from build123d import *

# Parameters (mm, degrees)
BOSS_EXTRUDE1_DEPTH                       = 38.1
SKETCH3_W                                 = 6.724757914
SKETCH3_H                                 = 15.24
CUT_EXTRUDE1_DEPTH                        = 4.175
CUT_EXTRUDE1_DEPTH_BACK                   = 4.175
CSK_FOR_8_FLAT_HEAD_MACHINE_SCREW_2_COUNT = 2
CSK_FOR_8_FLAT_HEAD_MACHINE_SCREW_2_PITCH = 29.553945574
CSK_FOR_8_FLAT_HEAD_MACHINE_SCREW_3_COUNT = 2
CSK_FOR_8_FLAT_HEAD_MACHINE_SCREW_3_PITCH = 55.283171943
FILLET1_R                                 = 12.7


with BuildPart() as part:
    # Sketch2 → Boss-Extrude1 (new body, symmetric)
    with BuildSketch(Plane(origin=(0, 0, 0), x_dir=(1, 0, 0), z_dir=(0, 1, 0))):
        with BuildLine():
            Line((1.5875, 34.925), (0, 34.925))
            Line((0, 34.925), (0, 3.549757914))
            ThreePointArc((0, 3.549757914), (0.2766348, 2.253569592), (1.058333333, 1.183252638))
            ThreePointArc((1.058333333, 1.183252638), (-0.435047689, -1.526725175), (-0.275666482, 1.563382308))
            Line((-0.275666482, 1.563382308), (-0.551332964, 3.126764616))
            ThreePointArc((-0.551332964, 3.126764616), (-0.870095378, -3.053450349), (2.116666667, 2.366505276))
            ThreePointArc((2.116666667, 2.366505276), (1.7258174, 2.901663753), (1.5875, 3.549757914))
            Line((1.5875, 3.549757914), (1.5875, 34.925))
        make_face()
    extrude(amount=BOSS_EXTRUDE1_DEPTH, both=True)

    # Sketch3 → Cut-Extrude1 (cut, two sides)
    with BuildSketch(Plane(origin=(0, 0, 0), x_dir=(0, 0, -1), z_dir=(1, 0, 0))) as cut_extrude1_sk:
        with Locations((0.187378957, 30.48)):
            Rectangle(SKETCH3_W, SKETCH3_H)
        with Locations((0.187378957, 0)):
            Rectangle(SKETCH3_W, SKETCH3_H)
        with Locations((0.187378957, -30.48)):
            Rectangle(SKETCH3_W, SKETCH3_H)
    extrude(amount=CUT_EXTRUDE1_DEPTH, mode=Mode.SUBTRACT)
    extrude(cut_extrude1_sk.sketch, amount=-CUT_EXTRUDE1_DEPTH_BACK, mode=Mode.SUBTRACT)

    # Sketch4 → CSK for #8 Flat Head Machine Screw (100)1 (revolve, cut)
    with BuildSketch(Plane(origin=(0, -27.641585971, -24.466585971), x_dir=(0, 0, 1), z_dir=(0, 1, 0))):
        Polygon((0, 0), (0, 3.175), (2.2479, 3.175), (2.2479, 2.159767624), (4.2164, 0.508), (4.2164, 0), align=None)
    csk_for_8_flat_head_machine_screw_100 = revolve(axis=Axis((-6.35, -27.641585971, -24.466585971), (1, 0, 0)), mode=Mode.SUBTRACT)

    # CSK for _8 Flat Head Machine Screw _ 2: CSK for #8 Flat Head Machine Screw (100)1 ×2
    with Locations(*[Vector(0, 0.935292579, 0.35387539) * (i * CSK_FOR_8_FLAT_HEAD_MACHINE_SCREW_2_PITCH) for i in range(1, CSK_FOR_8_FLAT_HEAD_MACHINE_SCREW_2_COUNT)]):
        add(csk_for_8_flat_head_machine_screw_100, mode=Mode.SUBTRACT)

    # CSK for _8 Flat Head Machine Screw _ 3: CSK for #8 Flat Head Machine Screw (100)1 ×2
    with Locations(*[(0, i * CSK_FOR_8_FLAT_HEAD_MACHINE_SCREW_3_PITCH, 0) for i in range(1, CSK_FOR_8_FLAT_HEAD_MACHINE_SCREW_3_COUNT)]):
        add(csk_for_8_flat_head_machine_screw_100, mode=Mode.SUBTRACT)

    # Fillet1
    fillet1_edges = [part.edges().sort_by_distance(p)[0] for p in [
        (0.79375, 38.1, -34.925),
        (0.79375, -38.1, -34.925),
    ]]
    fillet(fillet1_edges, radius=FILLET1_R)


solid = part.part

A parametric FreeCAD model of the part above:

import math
import FreeCAD as App
import Part
import Sketcher

V = App.Vector
Q = App.Units.Quantity


def edges_at(feature, points):
    """Names of the edges that pass closest to the given points."""
    edges = feature.Shape.Edges
    near = lambda p: min(range(len(edges)), key=lambda i: edges[i].distToShape(Part.Vertex(*p))[0])
    return sorted({f"Edge{near(p) + 1}" for p in points})

doc = App.newDocument("Part")
params = doc.addObject("Spreadsheet::Sheet", "Params")
for row, (alias, value) in enumerate([
    ("sketch1_radius", "0.125 in"),
    ("sketch1_radius2", "0.0625 in"),
    ("pad1_length", "3 in"),
    ("sketch2_width", "0.6 in"),
    ("sketch3_width", "0.02 in"),
    ("sketch3_width2", "0.125 in"),
    ("sketch3_height", "0.166 in"),
    ("groove_angle", "360 deg"),
    ("linearpattern_pitch", "29.553946 mm"),
    ("linearpattern2_pitch", "55.283172 mm"),
    ("fillet_radius", "0.5 in"),
], start=1):
    params.set(f"A{row}", alias)
    params.set(f"B{row}", "=" + value)
    params.setAlias(f"B{row}", alias)

body = doc.addObject("PartDesign::Body", "Body")

# Sketch on XZ plane
sketch1 = body.newObject("Sketcher::SketchObject", "Sketch")
sketch1.AttachmentSupport = (doc.getObject("XZ_Plane"), [""])
sketch1.MapMode = "FlatFace"
sketch1.addGeometry(Part.LineSegment(V(1.5875, -34.925, 0), V(0, -34.925, 0)), False)
sketch1.addGeometry(Part.LineSegment(V(0, -34.925, 0), V(0, -3.549758, 0)), False)
sketch1.addGeometry(Part.ArcOfCircle(Part.Circle(V(3.175, -3.549758, 0), V(0, 0, 1), 3.175), math.radians(131.810315), math.radians(180)), False)
sketch1.addGeometry(Part.ArcOfCircle(Part.Circle(V(0, 0, 0), V(0, 0, 1), 1.5875), math.radians(-48.189685), math.radians(260)), False)
sketch1.addGeometry(Part.LineSegment(V(-0.275666, -1.563382, 0), V(-0.551333, -3.126765, 0)), False)
sketch1.addGeometry(Part.ArcOfCircle(Part.Circle(V(0, 0, 0), V(0, 0, 1), 3.175), math.radians(-48.189685), math.radians(260)), False)
sketch1.addGeometry(Part.ArcOfCircle(Part.Circle(V(3.175, -3.549758, 0), V(0, 0, 1), 1.5875), math.radians(131.810315), math.radians(180)), False)
sketch1.addGeometry(Part.LineSegment(V(1.5875, -3.549758, 0), V(1.5875, -34.925, 0)), False)
sketch1.addConstraint(Sketcher.Constraint("Coincident", 0, 2, 1, 1))
sketch1.addConstraint(Sketcher.Constraint("Tangent", 1, 2, 2, 2))
sketch1.addConstraint(Sketcher.Constraint("Tangent", 2, 1, 3, 1))
sketch1.addConstraint(Sketcher.Constraint("Coincident", 3, 2, 4, 1))
sketch1.addConstraint(Sketcher.Constraint("Coincident", 4, 2, 5, 2))
sketch1.addConstraint(Sketcher.Constraint("Tangent", 5, 1, 6, 1))
sketch1.addConstraint(Sketcher.Constraint("Tangent", 6, 2, 7, 1))
sketch1.addConstraint(Sketcher.Constraint("Coincident", 7, 2, 0, 1))
sketch1.addConstraint(Sketcher.Constraint("Horizontal", 0))
sketch1.addConstraint(Sketcher.Constraint("Vertical", 1))
sketch1.addConstraint(Sketcher.Constraint("Vertical", 7))
sketch1.addConstraint(Sketcher.Constraint("Coincident", 3, 3, -1, 1))
sketch1.addConstraint(Sketcher.Constraint("Coincident", 5, 3, -1, 1))
sketch1.addConstraint(Sketcher.Constraint("Coincident", 6, 3, 2, 3))
sketch1.addConstraint(Sketcher.Constraint("Equal", 2, 5))
sketch1.addConstraint(Sketcher.Constraint("PointOnObject", 0, 2, -2))
sketch1.addConstraint(Sketcher.Constraint("Angle", 4, Q("-100 deg")))
sketch1.addConstraint(Sketcher.Constraint("Radius", 2, Q("0.125 in")))
sketch1.addConstraint(Sketcher.Constraint("Radius", 3, Q("0.0625 in")))
sketch1.addConstraint(Sketcher.Constraint("DistanceY", 0, 2, -1, 1, Q("1.375 in")))
sketch1.addConstraint(Sketcher.Constraint("DistanceX", 3, 2, 2, 1, 1.334))
sketch1.setExpression("Constraints[17]", "Params.sketch1_radius")
sketch1.setExpression("Constraints[18]", "Params.sketch1_radius2")
pad1 = body.newObject("PartDesign::Pad", "Pad")
pad1.Profile = sketch1
pad1.setExpression("Length", "Params.pad1_length")
pad1.Midplane = True

# Sketch on YZ plane
sketch2 = body.newObject("Sketcher::SketchObject", "Sketch001")
sketch2.AttachmentSupport = (doc.getObject("YZ_Plane"), [""])
sketch2.MapMode = "FlatFace"
sketch2.addGeometry(Part.LineSegment(V(38.1, 3.175, 0), V(22.86, 3.175, 0)), False)
sketch2.addGeometry(Part.LineSegment(V(22.86, 3.175, 0), V(22.86, -3.549758, 0)), False)
sketch2.addGeometry(Part.LineSegment(V(22.86, -3.549758, 0), V(38.1, -3.549758, 0)), False)
sketch2.addGeometry(Part.LineSegment(V(38.1, -3.549758, 0), V(38.1, 3.175, 0)), False)
sketch2.addGeometry(Part.LineSegment(V(7.62, 3.175, 0), V(-7.62, 3.175, 0)), False)
sketch2.addGeometry(Part.LineSegment(V(-7.62, 3.175, 0), V(-7.62, -3.549758, 0)), False)
sketch2.addGeometry(Part.LineSegment(V(-7.62, -3.549758, 0), V(7.62, -3.549758, 0)), False)
sketch2.addGeometry(Part.LineSegment(V(7.62, -3.549758, 0), V(7.62, 3.175, 0)), False)
sketch2.addGeometry(Part.LineSegment(V(-22.86, 3.175, 0), V(-38.1, 3.175, 0)), False)
sketch2.addGeometry(Part.LineSegment(V(-38.1, 3.175, 0), V(-38.1, -3.549758, 0)), False)
sketch2.addGeometry(Part.LineSegment(V(-38.1, -3.549758, 0), V(-22.86, -3.549758, 0)), False)
sketch2.addGeometry(Part.LineSegment(V(-22.86, -3.549758, 0), V(-22.86, 3.175, 0)), False)
sketch2.addConstraint(Sketcher.Constraint("Coincident", 0, 2, 1, 1))
sketch2.addConstraint(Sketcher.Constraint("Coincident", 1, 2, 2, 1))
sketch2.addConstraint(Sketcher.Constraint("Coincident", 2, 2, 3, 1))
sketch2.addConstraint(Sketcher.Constraint("Coincident", 3, 2, 0, 1))
sketch2.addConstraint(Sketcher.Constraint("Coincident", 4, 2, 5, 1))
sketch2.addConstraint(Sketcher.Constraint("Coincident", 5, 2, 6, 1))
sketch2.addConstraint(Sketcher.Constraint("Coincident", 6, 2, 7, 1))
sketch2.addConstraint(Sketcher.Constraint("Coincident", 7, 2, 4, 1))
sketch2.addConstraint(Sketcher.Constraint("Coincident", 8, 2, 9, 1))
sketch2.addConstraint(Sketcher.Constraint("Coincident", 9, 2, 10, 1))
sketch2.addConstraint(Sketcher.Constraint("Coincident", 10, 2, 11, 1))
sketch2.addConstraint(Sketcher.Constraint("Coincident", 11, 2, 8, 1))
sketch2.addConstraint(Sketcher.Constraint("Horizontal", 0))
sketch2.addConstraint(Sketcher.Constraint("Vertical", 1))
sketch2.addConstraint(Sketcher.Constraint("Horizontal", 2))
sketch2.addConstraint(Sketcher.Constraint("Vertical", 3))
sketch2.addConstraint(Sketcher.Constraint("Horizontal", 4))
sketch2.addConstraint(Sketcher.Constraint("Vertical", 5))
sketch2.addConstraint(Sketcher.Constraint("Horizontal", 6))
sketch2.addConstraint(Sketcher.Constraint("Vertical", 7))
sketch2.addConstraint(Sketcher.Constraint("Horizontal", 8))
sketch2.addConstraint(Sketcher.Constraint("Vertical", 9))
sketch2.addConstraint(Sketcher.Constraint("Horizontal", 10))
sketch2.addConstraint(Sketcher.Constraint("Vertical", 11))
sketch2.addConstraint(Sketcher.Constraint("Symmetric", 3, 2, 8, 2, -2))
sketch2.addConstraint(Sketcher.Constraint("Symmetric", 1, 2, 10, 2, -2))
sketch2.addConstraint(Sketcher.Constraint("Horizontal", 3, 2, 4, 2))
sketch2.addConstraint(Sketcher.Constraint("Horizontal", 2, 2, 5, 2))
sketch2.addConstraint(Sketcher.Constraint("Equal", 2, 4))
sketch2.addConstraint(Sketcher.Constraint("DistanceX", 0, 2, 0, 1, Q("0.6 in")))
sketch2.addConstraint(Sketcher.Constraint("DistanceX", -1, 1, 0, 2, Q("0.9 in")))
sketch2.addConstraint(Sketcher.Constraint("DistanceX", 4, 2, -1, 1, Q("0.3 in")))
sketch2.addConstraint(Sketcher.Constraint("DistanceY", -1, 1, 0, 2, Q("0.125 in")))
sketch2.addConstraint(Sketcher.Constraint("DistanceY", 1, 2, 1, 1, 6.724758))
sketch2.setExpression("Constraints[29]", "Params.sketch2_width")
pocket1 = body.newObject("PartDesign::Pocket", "Pocket")
pocket1.Profile = sketch2
pocket1.Type = "ThroughAll"
pocket1.Midplane = True

# Sketch on XZ plane
sketch3 = body.newObject("Sketcher::SketchObject", "Sketch002")
sketch3.AttachmentSupport = (doc.getObject("XZ_Plane"), [""])
sketch3.MapMode = "FlatFace"
sketch3.AttachmentOffset = App.Placement(V(0, 0, 27.641586), App.Rotation())
sketch3.addGeometry(Part.LineSegment(V(3.175, -24.466586, 0), V(0, -24.466586, 0)), False)
sketch3.addGeometry(Part.LineSegment(V(0, -24.466586, 0), V(0, -20.250186, 0)), False)
sketch3.addGeometry(Part.LineSegment(V(0, -20.250186, 0), V(0.508, -20.250186, 0)), False)
sketch3.addGeometry(Part.LineSegment(V(0.508, -20.250186, 0), V(2.159768, -22.218686, 0)), False)
sketch3.addGeometry(Part.LineSegment(V(2.159768, -22.218686, 0), V(3.175, -22.218686, 0)), False)
sketch3.addGeometry(Part.LineSegment(V(3.175, -22.218686, 0), V(3.175, -24.466586, 0)), False)
sketch3.addGeometry(Part.LineSegment(V(0, -24.466586, 0), V(3.175, -24.466586, 0)), True)  # axis
sketch3.addConstraint(Sketcher.Constraint("Coincident", 0, 2, 1, 1))
sketch3.addConstraint(Sketcher.Constraint("Coincident", 1, 2, 2, 1))
sketch3.addConstraint(Sketcher.Constraint("Coincident", 2, 2, 3, 1))
sketch3.addConstraint(Sketcher.Constraint("Coincident", 3, 2, 4, 1))
sketch3.addConstraint(Sketcher.Constraint("Coincident", 4, 2, 5, 1))
sketch3.addConstraint(Sketcher.Constraint("Coincident", 5, 2, 0, 1))
sketch3.addConstraint(Sketcher.Constraint("Horizontal", 0))
sketch3.addConstraint(Sketcher.Constraint("Vertical", 1))
sketch3.addConstraint(Sketcher.Constraint("Horizontal", 2))
sketch3.addConstraint(Sketcher.Constraint("Horizontal", 4))
sketch3.addConstraint(Sketcher.Constraint("Vertical", 5))
sketch3.addConstraint(Sketcher.Constraint("Horizontal", 6))
sketch3.addConstraint(Sketcher.Constraint("Coincident", 6, 1, 0, 2))
sketch3.addConstraint(Sketcher.Constraint("PointOnObject", 0, 2, -2))
sketch3.addConstraint(Sketcher.Constraint("Vertical", 4, 2, 6, 2))
sketch3.addConstraint(Sketcher.Constraint("Angle", 3, Q("-50 deg")))
sketch3.addConstraint(Sketcher.Constraint("DistanceX", 2, 1, 2, 2, Q("0.02 in")))
sketch3.addConstraint(Sketcher.Constraint("DistanceX", 0, 2, 0, 1, Q("0.125 in")))
sketch3.addConstraint(Sketcher.Constraint("DistanceY", 1, 1, 1, 2, Q("0.166 in")))
sketch3.addConstraint(Sketcher.Constraint("DistanceY", 5, 2, 5, 1, Q("0.0885 in")))
sketch3.addConstraint(Sketcher.Constraint("DistanceY", 0, 2, -1, 1, 24.466586))
sketch3.setExpression("Constraints[16]", "Params.sketch3_width")
sketch3.setExpression("Constraints[17]", "Params.sketch3_width2")
sketch3.setExpression("Constraints[18]", "Params.sketch3_height")
groove = body.newObject("PartDesign::Groove", "Groove")
groove.Profile = sketch3
groove.ReferenceAxis = (sketch3, ["Axis0"])
groove.setExpression("Angle", "Params.groove_angle")
doc.recompute()

datumline = body.newObject("PartDesign::Line", "DatumLine")
datumline.Placement = App.Placement(V(0, 0, 0), App.Rotation(V(0, 0, 1), V(0, 0.935292579, 0.35387539)))
linearpattern = body.newObject("PartDesign::LinearPattern", "LinearPattern")
linearpattern.Originals = [groove]
linearpattern.Direction = (datumline, [""])
linearpattern.Mode = "offset"
linearpattern.setExpression("Offset", "Params.linearpattern_pitch")
linearpattern.Occurrences = 2
body.Tip = linearpattern
doc.recompute()

linearpattern2 = body.newObject("PartDesign::LinearPattern", "LinearPattern001")
linearpattern2.Originals = [groove]
linearpattern2.Direction = (doc.getObject("Y_Axis"), [""])
linearpattern2.Mode = "offset"
linearpattern2.setExpression("Offset", "Params.linearpattern2_pitch")
linearpattern2.Occurrences = 2
body.Tip = linearpattern2
doc.recompute()

fillet = body.newObject("PartDesign::Fillet", "Fillet")
fillet.Base = (linearpattern2, edges_at(linearpattern2, [(0.794, 38.1, -34.925), (0.794, -38.1, -34.925)]))
fillet.setExpression("Radius", "Params.fillet_radius")

doc.recompute()
